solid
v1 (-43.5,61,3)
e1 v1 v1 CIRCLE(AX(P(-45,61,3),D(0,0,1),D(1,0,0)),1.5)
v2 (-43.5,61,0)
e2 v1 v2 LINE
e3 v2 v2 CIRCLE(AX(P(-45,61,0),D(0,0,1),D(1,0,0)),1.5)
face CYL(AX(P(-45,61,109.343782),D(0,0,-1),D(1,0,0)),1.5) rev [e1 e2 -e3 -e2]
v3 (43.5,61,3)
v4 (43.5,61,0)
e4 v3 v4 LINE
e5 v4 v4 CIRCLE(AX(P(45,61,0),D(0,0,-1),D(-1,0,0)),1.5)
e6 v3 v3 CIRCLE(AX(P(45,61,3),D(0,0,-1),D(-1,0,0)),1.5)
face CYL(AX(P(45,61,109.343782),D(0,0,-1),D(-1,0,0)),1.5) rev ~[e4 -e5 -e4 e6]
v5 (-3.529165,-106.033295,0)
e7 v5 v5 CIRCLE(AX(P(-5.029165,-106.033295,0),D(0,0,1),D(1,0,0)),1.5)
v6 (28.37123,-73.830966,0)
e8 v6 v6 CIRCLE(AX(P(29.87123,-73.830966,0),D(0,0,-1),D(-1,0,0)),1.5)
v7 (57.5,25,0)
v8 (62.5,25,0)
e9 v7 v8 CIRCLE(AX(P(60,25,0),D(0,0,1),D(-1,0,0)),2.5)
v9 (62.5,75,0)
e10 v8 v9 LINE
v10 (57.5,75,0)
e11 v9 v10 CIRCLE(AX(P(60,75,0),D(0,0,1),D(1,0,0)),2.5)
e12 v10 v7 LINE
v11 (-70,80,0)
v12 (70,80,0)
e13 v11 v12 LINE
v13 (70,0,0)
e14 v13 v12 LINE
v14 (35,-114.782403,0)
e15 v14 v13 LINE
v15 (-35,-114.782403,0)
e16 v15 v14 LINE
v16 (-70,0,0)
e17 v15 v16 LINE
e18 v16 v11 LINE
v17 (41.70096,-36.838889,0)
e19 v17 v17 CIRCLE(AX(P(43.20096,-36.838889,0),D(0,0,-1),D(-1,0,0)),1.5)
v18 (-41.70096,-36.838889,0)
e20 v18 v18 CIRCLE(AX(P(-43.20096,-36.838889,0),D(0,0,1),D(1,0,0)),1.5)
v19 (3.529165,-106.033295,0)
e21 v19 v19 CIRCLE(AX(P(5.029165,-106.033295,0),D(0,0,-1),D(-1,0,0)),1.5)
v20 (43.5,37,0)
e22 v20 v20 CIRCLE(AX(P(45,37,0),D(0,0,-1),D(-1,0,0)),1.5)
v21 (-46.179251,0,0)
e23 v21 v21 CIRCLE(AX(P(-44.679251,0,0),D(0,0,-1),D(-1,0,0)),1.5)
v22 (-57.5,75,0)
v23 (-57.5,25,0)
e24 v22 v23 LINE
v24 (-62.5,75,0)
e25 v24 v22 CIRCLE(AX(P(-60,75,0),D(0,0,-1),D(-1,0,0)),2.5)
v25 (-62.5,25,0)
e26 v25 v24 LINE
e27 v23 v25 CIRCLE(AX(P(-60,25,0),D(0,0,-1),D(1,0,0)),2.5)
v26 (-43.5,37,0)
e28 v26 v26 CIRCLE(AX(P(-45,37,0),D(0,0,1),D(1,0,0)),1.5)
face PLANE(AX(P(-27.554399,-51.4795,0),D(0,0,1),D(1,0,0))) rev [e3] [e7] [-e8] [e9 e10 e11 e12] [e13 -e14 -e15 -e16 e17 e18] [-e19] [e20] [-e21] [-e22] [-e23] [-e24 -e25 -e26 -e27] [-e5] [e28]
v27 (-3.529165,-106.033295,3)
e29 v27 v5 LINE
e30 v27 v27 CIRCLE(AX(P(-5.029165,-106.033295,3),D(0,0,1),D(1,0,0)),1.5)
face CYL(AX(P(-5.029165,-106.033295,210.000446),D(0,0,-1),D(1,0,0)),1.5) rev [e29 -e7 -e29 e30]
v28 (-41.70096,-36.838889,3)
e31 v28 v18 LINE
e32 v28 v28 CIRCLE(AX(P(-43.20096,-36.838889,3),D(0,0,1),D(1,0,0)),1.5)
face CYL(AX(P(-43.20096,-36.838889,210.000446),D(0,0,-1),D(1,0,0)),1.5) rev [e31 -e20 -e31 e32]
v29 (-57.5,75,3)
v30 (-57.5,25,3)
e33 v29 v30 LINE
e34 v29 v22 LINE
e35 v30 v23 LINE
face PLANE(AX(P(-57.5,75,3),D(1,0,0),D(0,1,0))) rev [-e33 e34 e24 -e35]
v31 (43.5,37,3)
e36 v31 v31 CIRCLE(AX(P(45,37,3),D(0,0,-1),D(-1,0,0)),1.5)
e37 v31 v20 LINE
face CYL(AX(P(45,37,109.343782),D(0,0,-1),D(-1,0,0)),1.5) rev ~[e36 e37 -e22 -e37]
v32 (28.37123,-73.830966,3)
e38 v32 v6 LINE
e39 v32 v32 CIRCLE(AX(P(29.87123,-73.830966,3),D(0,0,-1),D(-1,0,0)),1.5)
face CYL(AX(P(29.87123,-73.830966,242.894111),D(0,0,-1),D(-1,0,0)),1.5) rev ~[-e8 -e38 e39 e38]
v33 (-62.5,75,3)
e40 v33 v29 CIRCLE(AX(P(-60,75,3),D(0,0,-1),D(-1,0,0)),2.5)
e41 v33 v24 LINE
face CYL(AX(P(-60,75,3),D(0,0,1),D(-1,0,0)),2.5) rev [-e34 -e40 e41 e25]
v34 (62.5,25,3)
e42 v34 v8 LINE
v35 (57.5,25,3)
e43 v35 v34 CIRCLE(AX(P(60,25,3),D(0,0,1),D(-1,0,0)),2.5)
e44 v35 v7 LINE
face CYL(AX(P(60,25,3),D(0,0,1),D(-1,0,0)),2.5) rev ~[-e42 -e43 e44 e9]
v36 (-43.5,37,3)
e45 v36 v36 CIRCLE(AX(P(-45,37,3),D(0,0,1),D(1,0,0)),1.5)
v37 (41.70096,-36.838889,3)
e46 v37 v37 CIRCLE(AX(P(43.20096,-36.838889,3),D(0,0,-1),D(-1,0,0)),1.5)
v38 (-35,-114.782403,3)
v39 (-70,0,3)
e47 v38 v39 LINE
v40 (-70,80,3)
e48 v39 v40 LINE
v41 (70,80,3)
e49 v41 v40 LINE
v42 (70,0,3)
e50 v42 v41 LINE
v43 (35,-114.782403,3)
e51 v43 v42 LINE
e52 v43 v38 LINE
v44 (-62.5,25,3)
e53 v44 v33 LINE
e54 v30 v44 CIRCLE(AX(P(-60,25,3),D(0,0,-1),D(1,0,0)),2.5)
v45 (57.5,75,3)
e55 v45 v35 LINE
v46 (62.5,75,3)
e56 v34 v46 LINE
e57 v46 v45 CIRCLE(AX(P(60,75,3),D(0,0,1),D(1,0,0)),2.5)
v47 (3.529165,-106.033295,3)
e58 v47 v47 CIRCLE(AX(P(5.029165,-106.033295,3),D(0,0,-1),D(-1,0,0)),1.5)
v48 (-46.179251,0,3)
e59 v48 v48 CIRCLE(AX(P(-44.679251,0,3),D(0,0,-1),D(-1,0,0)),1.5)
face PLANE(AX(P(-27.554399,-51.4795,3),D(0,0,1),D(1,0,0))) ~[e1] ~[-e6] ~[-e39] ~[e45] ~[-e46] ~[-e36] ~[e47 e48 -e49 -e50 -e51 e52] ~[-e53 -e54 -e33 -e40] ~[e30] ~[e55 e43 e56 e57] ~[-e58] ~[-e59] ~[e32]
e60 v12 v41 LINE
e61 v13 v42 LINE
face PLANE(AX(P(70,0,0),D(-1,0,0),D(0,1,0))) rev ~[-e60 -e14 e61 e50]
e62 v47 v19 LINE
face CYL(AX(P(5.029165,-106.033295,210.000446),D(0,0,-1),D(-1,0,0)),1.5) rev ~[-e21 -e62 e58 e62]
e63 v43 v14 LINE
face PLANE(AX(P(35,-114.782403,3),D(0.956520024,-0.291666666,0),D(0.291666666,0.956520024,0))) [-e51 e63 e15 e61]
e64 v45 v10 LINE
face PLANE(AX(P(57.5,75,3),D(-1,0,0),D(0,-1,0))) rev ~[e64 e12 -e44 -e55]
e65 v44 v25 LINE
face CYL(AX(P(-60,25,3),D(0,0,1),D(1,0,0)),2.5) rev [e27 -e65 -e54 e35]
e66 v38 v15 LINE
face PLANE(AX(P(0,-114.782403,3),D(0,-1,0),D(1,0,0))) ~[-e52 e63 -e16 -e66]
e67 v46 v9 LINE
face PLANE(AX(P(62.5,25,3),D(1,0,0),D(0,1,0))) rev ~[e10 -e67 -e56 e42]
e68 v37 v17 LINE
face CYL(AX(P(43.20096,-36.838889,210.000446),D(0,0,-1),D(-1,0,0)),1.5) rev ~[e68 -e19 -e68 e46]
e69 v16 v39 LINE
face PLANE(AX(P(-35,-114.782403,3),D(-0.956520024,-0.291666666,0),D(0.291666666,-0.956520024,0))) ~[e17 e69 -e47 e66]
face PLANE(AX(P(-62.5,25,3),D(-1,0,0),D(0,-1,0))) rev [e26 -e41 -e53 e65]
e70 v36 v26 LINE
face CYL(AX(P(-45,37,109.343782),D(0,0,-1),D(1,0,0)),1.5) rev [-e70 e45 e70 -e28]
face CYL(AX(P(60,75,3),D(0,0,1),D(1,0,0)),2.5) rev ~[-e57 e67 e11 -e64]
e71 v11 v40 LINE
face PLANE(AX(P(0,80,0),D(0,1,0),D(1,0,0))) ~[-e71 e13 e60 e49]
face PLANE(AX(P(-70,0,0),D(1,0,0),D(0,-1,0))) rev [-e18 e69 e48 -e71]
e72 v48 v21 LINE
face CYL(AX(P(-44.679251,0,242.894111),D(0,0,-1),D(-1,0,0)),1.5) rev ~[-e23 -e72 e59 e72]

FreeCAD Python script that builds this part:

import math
import FreeCAD as App
import Part
import Sketcher
from FreeCAD import Vector
Q = App.Units.Quantity


def add_polygon(sketch, points):
    """Adds a closed chain of lines whose ends are joined by coincident constraints."""
    first, n = sketch.GeometryCount, len(points)
    for a, b in zip(points, points[1:] + points[:1]):
        sketch.addGeometry(Part.LineSegment(App.Vector(*a, 0), App.Vector(*b, 0)), False)
    for i in range(n):
        sketch.addConstraint(Sketcher.Constraint("Coincident", first + i, 2, first + (i + 1) % n, 1))

doc = App.newDocument("Part")
body = doc.addObject("PartDesign::Body", "Body")

sketch1 = body.newObject("Sketcher::SketchObject", "Sketch")
sketch1.AttachmentSupport = (doc.getObject("XY_Plane"), [""])
sketch1.MapMode = "FlatFace"
add_polygon(sketch1, [(0, 80), (0, 0), (70, 0), (70, 80)])
sketch1.addConstraint([
    Sketcher.Constraint("Vertical", 0),
    Sketcher.Constraint("Horizontal", 1),
    Sketcher.Constraint("Vertical", 2),
    Sketcher.Constraint("Horizontal", 3),
    Sketcher.Constraint("Coincident", 0, 2, -1, 1),
    Sketcher.Constraint("DistanceX", 1, 1, 1, 2, Q("70 mm")),
    Sketcher.Constraint("DistanceY", 0, 2, 0, 1, Q("80 mm")),
])
pad1 = body.newObject("PartDesign::Pad", "Pad")
pad1.Profile = sketch1
pad1.Length = 3

sketch2 = body.newObject("Sketcher::SketchObject", "Sketch001")
sketch2.AttachmentSupport = (doc.getObject("XY_Plane"), [""])
sketch2.MapMode = "FlatFace"
sketch2.AttachmentOffset = App.Placement(Vector(0, 0, 3), App.Rotation())
sketch2.addGeometry([
    Part.Circle(Vector(45, 61, 0), Vector(0, 0, 1), 1.5),
    Part.Circle(Vector(45, 37, 0), Vector(0, 0, 1), 1.5),
], False)
sketch2.addConstraint([
    Sketcher.Constraint("Equal", 0, 1),
    Sketcher.Constraint("Vertical", 0, 3, 1, 3),
    Sketcher.Constraint("Diameter", 0, Q("3 mm")),
    Sketcher.Constraint("DistanceX", -1, 1, 0, 3, Q("45 mm")),
    Sketcher.Constraint("DistanceY", -1, 1, 0, 3, Q("61 mm")),
    Sketcher.Constraint("DistanceY", -1, 1, 1, 3, Q("37 mm")),
])
doc.recompute()
hole = body.newObject("PartDesign::Hole", "Hole")
hole.Profile = sketch2
hole.ThreadType = "None"
hole.Diameter = 3
hole.DepthType = "ThroughAll"

sketch3 = body.newObject("Sketcher::SketchObject", "Sketch002")
sketch3.AttachmentSupport = (doc.getObject("XY_Plane"), [""])
sketch3.MapMode = "FlatFace"
sketch3.AttachmentOffset = App.Placement(Vector(0, 0, 3), App.Rotation())
add_polygon(sketch3, [(35, -115), (70, 0), (0, 0), (0, -115)])
sketch3.addConstraint([
    Sketcher.Constraint("Horizontal", 1),
    Sketcher.Constraint("Vertical", 2),
    Sketcher.Constraint("Horizontal", 3),
    Sketcher.Constraint("Coincident", 1, 2, -1, 1),
    Sketcher.Constraint("DistanceX", 1, 2, 1, 1, Q("70 mm")),
    Sketcher.Constraint("DistanceX", 3, 1, 3, 2, Q("35 mm")),
    Sketcher.Constraint("Distance", 0, Q("120 mm")),
])
pad2 = body.newObject("PartDesign::Pad", "Pad001")
pad2.Profile = sketch3
pad2.Length = 3
pad2.Reversed = True

sketch4 = body.newObject("Sketcher::SketchObject", "Sketch003")
sketch4.AttachmentSupport = (doc.getObject("XY_Plane"), [""])
sketch4.MapMode = "FlatFace"
sketch4.AttachmentOffset = App.Placement(Vector(0, 0, 3), App.Rotation())
sketch4.addGeometry([
    Part.Circle(Vector(-41.8, -36.8, 0), Vector(0, 0, 1), 1.5),
    Part.Circle(Vector(43.2, -36.8, 0), Vector(0, 0, 1), 1.5),
], False)
sketch4.addConstraint([
    Sketcher.Constraint("Equal", 0, 1),
    Sketcher.Constraint("Horizontal", 0, 3, 1, 3),
    Sketcher.Constraint("Diameter", 0, Q("3 mm")),
    Sketcher.Constraint("DistanceX", 0, 3, 1, 3, Q("85 mm")),
    Sketcher.Constraint("DistanceX", 0, 3, -1, 1, Q("41.79904 mm")),
    Sketcher.Constraint("DistanceY", 0, 3, -1, 1, Q("36.838889 mm")),
])
doc.recompute()
hole2 = body.newObject("PartDesign::Hole", "Hole001")
hole2.Profile = sketch4
hole2.ThreadType = "None"
hole2.Diameter = 3
hole2.DepthType = "ThroughAll"

sketch5 = body.newObject("Sketcher::SketchObject", "Sketch004")
sketch5.AttachmentSupport = (doc.getObject("XY_Plane"), [""])
sketch5.MapMode = "FlatFace"
sketch5.AttachmentOffset = App.Placement(Vector(0, 0, 3), App.Rotation())
sketch5.addGeometry([
    Part.Circle(Vector(-14, -106, 0), Vector(0, 0, 1), 1.5),
    Part.Circle(Vector(5, -106, 0), Vector(0, 0, 1), 1.5),
], False)
sketch5.addConstraint([
    Sketcher.Constraint("Equal", 0, 1),
    Sketcher.Constraint("Horizontal", 0, 3, 1, 3),
    Sketcher.Constraint("Diameter", 0, Q("3 mm")),
    Sketcher.Constraint("DistanceX", 0, 3, 1, 3, Q("19 mm")),
    Sketcher.Constraint("DistanceX", 0, 3, -1, 1, Q("13.970835 mm")),
    Sketcher.Constraint("DistanceY", 0, 3, -1, 1, Q("106.033295 mm")),
])
doc.recompute()
hole3 = body.newObject("PartDesign::Hole", "Hole002")
hole3.Profile = sketch5
hole3.ThreadType = "None"
hole3.Diameter = 3
hole3.DepthType = "ThroughAll"

sketch6 = body.newObject("Sketcher::SketchObject", "Sketch005")
sketch6.AttachmentSupport = (doc.getObject("XY_Plane"), [""])
sketch6.MapMode = "FlatFace"
sketch6.AttachmentOffset = App.Placement(Vector(0, 0, 3), App.Rotation())
sketch6.addGeometry([
    Part.ArcOfCircle(Part.Circle(Vector(60, 75, 0), Vector(0, 0, 1), 2.5), math.radians(0), math.radians(180)),
    Part.LineSegment(Vector(57.5, 75, 0), Vector(57.5, 25, 0)),
    Part.ArcOfCircle(Part.Circle(Vector(60, 25, 0), Vector(0, 0, 1), 2.5), math.radians(180), math.radians(360)),
    Part.LineSegment(Vector(62.5, 25, 0), Vector(62.5, 75, 0)),
], False)
sketch6.addConstraint([
    Sketcher.Constraint("Tangent", 0, 2, 1, 1),
    Sketcher.Constraint("Tangent", 1, 2, 2, 1),
    Sketcher.Constraint("Tangent", 2, 2, 3, 1),
    Sketcher.Constraint("Tangent", 3, 2, 0, 1),
    Sketcher.Constraint("Vertical", 1),
    Sketcher.Constraint("Vertical", 3),
    Sketcher.Constraint("Radius", 0, Q("2.5 mm")),
    Sketcher.Constraint("DistanceY", 1, 2, 1, 1, Q("50 mm")),
    Sketcher.Constraint("DistanceX", -1, 1, 0, 3, Q("60 mm")),
    Sketcher.Constraint("DistanceY", -1, 1, 0, 3, Q("75 mm")),
])
pocket1 = body.newObject("PartDesign::Pocket", "Pocket")
pocket1.Profile = sketch6
pocket1.Length = 25
body2 = doc.addObject("PartDesign::Body", "Body001")
doc.recompute()

body2.BaseFeature = body
doc.recompute()

mirroring = doc.addObject("Part::Mirroring", "Mirroring")
mirroring.Source = body
mirroring.Base = Vector(0, 0, 0)
mirroring.Normal = Vector(1, 0, 0)
body3 = doc.addObject("PartDesign::Body", "Body002")
body3.BaseFeature = mirroring
boolean = body2.newObject("PartDesign::Boolean", "Boolean")
boolean.Type = "Fuse"
boolean.addObjects([body3])
doc.recompute()

sketch7 = body2.newObject("Sketcher::SketchObject", "Sketch006")
sketch7.AttachmentSupport = (doc.getObject("XY_Plane001"), [""])
sketch7.MapMode = "FlatFace"
sketch7.AttachmentOffset = App.Placement(Vector(0, 0, 3), App.Rotation())
sketch7.addGeometry(Part.Circle(Vector(29.9, -73.8, 0), Vector(0, 0, 1), 1.5), False)
sketch7.addConstraint([
    Sketcher.Constraint("Diameter", 0, Q("3 mm")),
    Sketcher.Constraint("DistanceX", -1, 1, 0, 3, Q("29.87123 mm")),
    Sketcher.Constraint("DistanceY", 0, 3, -1, 1, Q("73.830966 mm")),
])
doc.recompute()
hole4 = body2.newObject("PartDesign::Hole", "Hole003")
hole4.Profile = sketch7
hole4.ThreadType = "None"
hole4.Diameter = 3
hole4.DepthType = "ThroughAll"

sketch8 = body2.newObject("Sketcher::SketchObject", "Sketch007")
sketch8.AttachmentSupport = (doc.getObject("XY_Plane001"), [""])
sketch8.MapMode = "FlatFace"
sketch8.AttachmentOffset = App.Placement(Vector(0, 0, 3), App.Rotation())
sketch8.addGeometry(Part.Circle(Vector(-44.7, 0, 0), Vector(0, 0, 1), 1.5), False)
sketch8.addConstraint([
    Sketcher.Constraint("PointOnObject", 0, 3, -1),
    Sketcher.Constraint("Diameter", 0, Q("3 mm")),
    Sketcher.Constraint("DistanceX", 0, 3, -1, 1, Q("44.679251 mm")),
])
doc.recompute()
hole5 = body2.newObject("PartDesign::Hole", "Hole004")
hole5.Profile = sketch8
hole5.ThreadType = "None"
hole5.Diameter = 3
hole5.DepthType = "ThroughAll"
mirroring.Visibility = False

doc.recompute()
